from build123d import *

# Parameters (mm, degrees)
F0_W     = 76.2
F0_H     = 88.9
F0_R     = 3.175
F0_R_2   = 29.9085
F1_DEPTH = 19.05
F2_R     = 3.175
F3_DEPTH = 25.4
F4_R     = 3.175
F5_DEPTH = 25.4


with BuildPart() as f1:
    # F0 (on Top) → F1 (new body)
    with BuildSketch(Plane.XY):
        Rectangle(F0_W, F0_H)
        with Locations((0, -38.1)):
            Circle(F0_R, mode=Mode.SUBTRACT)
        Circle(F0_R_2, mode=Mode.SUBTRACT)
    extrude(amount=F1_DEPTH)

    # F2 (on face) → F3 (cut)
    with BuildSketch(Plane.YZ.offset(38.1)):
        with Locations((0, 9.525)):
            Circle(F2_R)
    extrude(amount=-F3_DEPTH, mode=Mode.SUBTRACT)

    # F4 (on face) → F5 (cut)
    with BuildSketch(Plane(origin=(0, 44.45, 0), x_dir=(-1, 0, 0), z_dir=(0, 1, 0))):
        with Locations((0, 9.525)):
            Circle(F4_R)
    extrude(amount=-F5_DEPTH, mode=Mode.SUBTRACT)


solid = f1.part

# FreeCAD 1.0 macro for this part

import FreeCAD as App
import Part
import Sketcher

V = App.Vector
Q = App.Units.Quantity

doc = App.newDocument("Part")
body = doc.addObject("PartDesign::Body", "Body")

# Sketch on XY plane
sketch1 = doc.addObject("Sketcher::SketchObject", "Sketch")
body.addObject(sketch1)
sketch1.AttachmentSupport = (doc.XY_Plane, [""])
sketch1.MapMode = "FlatFace"
sketch1.addGeometry(Part.LineSegment(V(-38.1, 44.45, 0), V(-38.1, -44.45, 0)), False)
sketch1.addGeometry(Part.LineSegment(V(-38.1, -44.45, 0), V(38.1, -44.45, 0)), False)
sketch1.addGeometry(Part.LineSegment(V(38.1, -44.45, 0), V(38.1, 44.45, 0)), False)
sketch1.addGeometry(Part.LineSegment(V(38.1, 44.45, 0), V(-38.1, 44.45, 0)), False)
sketch1.addGeometry(Part.Circle(V(0, -38.1, 0), V(0, 0, 1), 3.175), False)
sketch1.addGeometry(Part.Circle(V(0, 0, 0), V(0, 0, 1), 29.9085), False)
sketch1.addConstraint(Sketcher.Constraint("Coincident", 0, 2, 1, 1))
sketch1.addConstraint(Sketcher.Constraint("Coincident", 1, 2, 2, 1))
sketch1.addConstraint(Sketcher.Constraint("Coincident", 2, 2, 3, 1))
sketch1.addConstraint(Sketcher.Constraint("Coincident", 3, 2, 0, 1))
sketch1.addConstraint(Sketcher.Constraint("Vertical", 0))
sketch1.addConstraint(Sketcher.Constraint("Horizontal", 1))
sketch1.addConstraint(Sketcher.Constraint("Vertical", 2))
sketch1.addConstraint(Sketcher.Constraint("Horizontal", 3))
sketch1.addConstraint(Sketcher.Constraint("Coincident", 5, 3, -1, 1))
sketch1.addConstraint(Sketcher.Constraint("Symmetric", 0, 2, 2, 2, -1, 1))
sketch1.addConstraint(Sketcher.Constraint("PointOnObject", 4, 3, -2))
sketch1.addConstraint(Sketcher.Constraint("Diameter", 4, Q("0.25 in")))
sketch1.addConstraint(Sketcher.Constraint("DistanceX", 1, 1, 1, 2, Q("3 in")))
sketch1.addConstraint(Sketcher.Constraint("Diameter", 5, Q("2.355 in")))
sketch1.addConstraint(Sketcher.Constraint("DistanceY", 0, 2, 0, 1, Q("3.5 in")))
sketch1.addConstraint(Sketcher.Constraint("DistanceY", 4, 3, -1, 1, Q("1.5 in")))
pad1 = doc.addObject("PartDesign::Pad", "Pad")
body.addObject(pad1)
pad1.Profile = sketch1
pad1.Length = Q("0.75 in")

# Sketch on YZ plane
sketch2 = doc.addObject("Sketcher::SketchObject", "Sketch001")
body.addObject(sketch2)
sketch2.AttachmentSupport = (doc.YZ_Plane, [""])
sketch2.MapMode = "FlatFace"
sketch2.AttachmentOffset = App.Placement(V(0, 0, 1.5 * 25.4), App.Rotation())
sketch2.addGeometry(Part.Circle(V(0, 9.525, 0), V(0, 0, 1), 3.175), False)
sketch2.addConstraint(Sketcher.Constraint("PointOnObject", 0, 3, -2))
sketch2.addConstraint(Sketcher.Constraint("Diameter", 0, Q("0.25 in")))
sketch2.addConstraint(Sketcher.Constraint("DistanceY", -1, 1, 0, 3, Q("0.375 in")))
pocket1 = doc.addObject("PartDesign::Pocket", "Pocket")
body.addObject(pocket1)
pocket1.Profile = sketch2
pocket1.Length = Q("1 in")

# Sketch on XZ plane
sketch3 = doc.addObject("Sketcher::SketchObject", "Sketch002")
body.addObject(sketch3)
sketch3.AttachmentSupport = (doc.XZ_Plane, [""])
sketch3.MapMode = "FlatFace"
sketch3.AttachmentOffset = App.Placement(V(0, 0, -1.75 * 25.4), App.Rotation())
sketch3.addGeometry(Part.Circle(V(0, 9.525, 0), V(0, 0, 1), 3.175), False)
sketch3.addConstraint(Sketcher.Constraint("PointOnObject", 0, 3, -2))
sketch3.addConstraint(Sketcher.Constraint("Diameter", 0, Q("0.25 in")))
sketch3.addConstraint(Sketcher.Constraint("DistanceY", -1, 1, 0, 3, Q("0.375 in")))
pocket2 = doc.addObject("PartDesign::Pocket", "Pocket001")
body.addObject(pocket2)
pocket2.Profile = sketch3
pocket2.Length = Q("1 in")
pocket2.Reversed = True

doc.recompute()
